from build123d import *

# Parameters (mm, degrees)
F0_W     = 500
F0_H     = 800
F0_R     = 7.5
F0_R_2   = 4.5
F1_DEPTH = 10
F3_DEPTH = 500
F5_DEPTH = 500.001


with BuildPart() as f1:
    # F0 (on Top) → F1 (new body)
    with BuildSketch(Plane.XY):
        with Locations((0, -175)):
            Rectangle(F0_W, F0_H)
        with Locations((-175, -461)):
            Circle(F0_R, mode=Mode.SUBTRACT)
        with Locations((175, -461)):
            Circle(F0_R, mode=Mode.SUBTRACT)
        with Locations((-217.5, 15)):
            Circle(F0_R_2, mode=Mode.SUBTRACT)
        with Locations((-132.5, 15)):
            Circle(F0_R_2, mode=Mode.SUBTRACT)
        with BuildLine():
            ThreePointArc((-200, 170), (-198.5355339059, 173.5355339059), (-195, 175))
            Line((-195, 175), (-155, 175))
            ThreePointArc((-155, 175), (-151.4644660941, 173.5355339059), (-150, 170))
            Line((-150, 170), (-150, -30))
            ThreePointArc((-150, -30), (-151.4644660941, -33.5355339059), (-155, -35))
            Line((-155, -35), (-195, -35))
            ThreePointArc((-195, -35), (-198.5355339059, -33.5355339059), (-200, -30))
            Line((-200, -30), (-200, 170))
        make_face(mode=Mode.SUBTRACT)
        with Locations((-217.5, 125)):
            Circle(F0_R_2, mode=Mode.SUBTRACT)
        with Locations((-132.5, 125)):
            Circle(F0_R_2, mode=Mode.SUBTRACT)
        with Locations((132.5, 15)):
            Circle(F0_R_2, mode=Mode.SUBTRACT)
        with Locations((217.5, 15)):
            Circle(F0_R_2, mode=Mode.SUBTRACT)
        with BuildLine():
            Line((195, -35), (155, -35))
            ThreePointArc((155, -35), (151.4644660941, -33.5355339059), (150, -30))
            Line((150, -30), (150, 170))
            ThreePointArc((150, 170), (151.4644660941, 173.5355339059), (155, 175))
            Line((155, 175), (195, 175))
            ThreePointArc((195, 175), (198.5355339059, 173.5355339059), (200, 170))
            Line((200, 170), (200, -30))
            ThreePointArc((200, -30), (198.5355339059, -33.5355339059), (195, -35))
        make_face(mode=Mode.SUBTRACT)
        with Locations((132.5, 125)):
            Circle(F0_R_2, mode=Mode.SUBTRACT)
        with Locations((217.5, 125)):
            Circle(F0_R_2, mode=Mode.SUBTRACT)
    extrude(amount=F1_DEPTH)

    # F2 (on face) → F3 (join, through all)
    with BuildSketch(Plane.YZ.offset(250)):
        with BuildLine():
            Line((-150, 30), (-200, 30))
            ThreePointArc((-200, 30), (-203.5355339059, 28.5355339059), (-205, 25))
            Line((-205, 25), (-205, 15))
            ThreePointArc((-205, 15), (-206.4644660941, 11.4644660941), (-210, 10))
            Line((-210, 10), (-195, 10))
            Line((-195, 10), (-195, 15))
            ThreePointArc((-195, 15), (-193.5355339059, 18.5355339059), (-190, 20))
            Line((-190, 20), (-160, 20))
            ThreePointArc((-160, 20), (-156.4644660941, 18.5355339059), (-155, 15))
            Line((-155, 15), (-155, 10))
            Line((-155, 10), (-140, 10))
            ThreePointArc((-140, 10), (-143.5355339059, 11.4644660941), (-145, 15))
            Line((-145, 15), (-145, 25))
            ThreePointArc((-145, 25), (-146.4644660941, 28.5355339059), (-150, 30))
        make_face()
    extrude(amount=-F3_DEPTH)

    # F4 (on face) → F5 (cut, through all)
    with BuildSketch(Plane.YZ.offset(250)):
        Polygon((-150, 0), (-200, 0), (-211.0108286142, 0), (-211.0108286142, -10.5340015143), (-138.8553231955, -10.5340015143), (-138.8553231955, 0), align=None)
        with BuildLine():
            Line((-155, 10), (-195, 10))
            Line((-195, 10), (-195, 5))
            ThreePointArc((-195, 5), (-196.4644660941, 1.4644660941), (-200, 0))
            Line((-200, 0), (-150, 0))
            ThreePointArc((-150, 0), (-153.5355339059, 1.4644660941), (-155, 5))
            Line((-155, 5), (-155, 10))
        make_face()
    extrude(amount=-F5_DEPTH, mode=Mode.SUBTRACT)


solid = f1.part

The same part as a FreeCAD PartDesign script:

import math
import FreeCAD as App
import Part
import Sketcher

doc = App.newDocument("Part")
body = doc.addObject("PartDesign::Body", "Body")

# Sketch on XY plane
sketch1 = body.newObject("Sketcher::SketchObject", "Sketch")
sketch1.AttachmentSupport = (doc.getObject("XY_Plane"), [""])
sketch1.MapMode = "FlatFace"
sketch1.addGeometry([
    Part.LineSegment(App.Vector(-250, 225, 0), App.Vector(-250, -575, 0)),  # 0
    Part.LineSegment(App.Vector(-250, -575, 0), App.Vector(250, -575, 0)),  # 1
    Part.LineSegment(App.Vector(250, -575, 0), App.Vector(250, 225, 0)),  # 2
    Part.LineSegment(App.Vector(250, 225, 0), App.Vector(-250, 225, 0)),  # 3
    Part.Circle(App.Vector(-175, -461, 0), App.Vector(0, 0, 1), 7.5),  # 4
    Part.Circle(App.Vector(175, -461, 0), App.Vector(0, 0, 1), 7.5),  # 5
    Part.Circle(App.Vector(-217.5, 15, 0), App.Vector(0, 0, 1), 4.5),  # 6
    Part.LineSegment(App.Vector(-200, -30, 0), App.Vector(-200, 170, 0)),  # 7
    Part.ArcOfCircle(Part.Circle(App.Vector(-195, 170, 0), App.Vector(0, 0, 1), 5), math.radians(90), math.radians(180)),  # 8
    Part.LineSegment(App.Vector(-195, 175, 0), App.Vector(-155, 175, 0)),  # 9
    Part.ArcOfCircle(Part.Circle(App.Vector(-155, 170, 0), App.Vector(0, 0, 1), 5), math.radians(0), math.radians(90)),  # 10
    Part.LineSegment(App.Vector(-150, 170, 0), App.Vector(-150, -30, 0)),  # 11
    Part.ArcOfCircle(Part.Circle(App.Vector(-155, -30, 0), App.Vector(0, 0, 1), 5), math.radians(-90), math.radians(0)),  # 12
    Part.LineSegment(App.Vector(-155, -35, 0), App.Vector(-195, -35, 0)),  # 13
    Part.ArcOfCircle(Part.Circle(App.Vector(-195, -30, 0), App.Vector(0, 0, 1), 5), math.radians(180), math.radians(270)),  # 14
    Part.Circle(App.Vector(-132.5, 15, 0), App.Vector(0, 0, 1), 4.5),  # 15
    Part.Circle(App.Vector(-217.5, 125, 0), App.Vector(0, 0, 1), 4.5),  # 16
    Part.Circle(App.Vector(-132.5, 125, 0), App.Vector(0, 0, 1), 4.5),  # 17
    Part.Circle(App.Vector(132.5, 15, 0), App.Vector(0, 0, 1), 4.5),  # 18
    Part.Circle(App.Vector(217.5, 15, 0), App.Vector(0, 0, 1), 4.5),  # 19
    Part.ArcOfCircle(Part.Circle(App.Vector(195, -30, 0), App.Vector(0, 0, 1), 5), math.radians(-90), math.radians(0)),  # 20
    Part.LineSegment(App.Vector(195, -35, 0), App.Vector(155, -35, 0)),  # 21
    Part.ArcOfCircle(Part.Circle(App.Vector(155, -30, 0), App.Vector(0, 0, 1), 5), math.radians(180), math.radians(270)),  # 22
    Part.LineSegment(App.Vector(150, -30, 0), App.Vector(150, 170, 0)),  # 23
    Part.ArcOfCircle(Part.Circle(App.Vector(155, 170, 0), App.Vector(0, 0, 1), 5), math.radians(90), math.radians(180)),  # 24
    Part.LineSegment(App.Vector(155, 175, 0), App.Vector(195, 175, 0)),  # 25
    Part.ArcOfCircle(Part.Circle(App.Vector(195, 170, 0), App.Vector(0, 0, 1), 5), math.radians(0), math.radians(90)),  # 26
    Part.LineSegment(App.Vector(200, 170, 0), App.Vector(200, -30, 0)),  # 27
    Part.Circle(App.Vector(132.5, 125, 0), App.Vector(0, 0, 1), 4.5),  # 28
    Part.Circle(App.Vector(217.5, 125, 0), App.Vector(0, 0, 1), 4.5),  # 29
], False)
sketch1.addConstraint([
    Sketcher.Constraint("Coincident", 0, 2, 1, 1),
    Sketcher.Constraint("Coincident", 1, 2, 2, 1),
    Sketcher.Constraint("Coincident", 2, 2, 3, 1),
    Sketcher.Constraint("Coincident", 3, 2, 0, 1),
    Sketcher.Constraint("Tangent", 7, 2, 8, 2),
    Sketcher.Constraint("Tangent", 8, 1, 9, 1),
    Sketcher.Constraint("Tangent", 9, 2, 10, 2),
    Sketcher.Constraint("Tangent", 10, 1, 11, 1),
    Sketcher.Constraint("Tangent", 11, 2, 12, 2),
    Sketcher.Constraint("Tangent", 12, 1, 13, 1),
    Sketcher.Constraint("Tangent", 13, 2, 14, 2),
    Sketcher.Constraint("Tangent", 14, 1, 7, 1),
    Sketcher.Constraint("Tangent", 20, 1, 21, 1),
    Sketcher.Constraint("Tangent", 21, 2, 22, 2),
    Sketcher.Constraint("Tangent", 22, 1, 23, 1),
    Sketcher.Constraint("Tangent", 23, 2, 24, 2),
    Sketcher.Constraint("Tangent", 24, 1, 25, 1),
    Sketcher.Constraint("Tangent", 25, 2, 26, 2),
    Sketcher.Constraint("Tangent", 26, 1, 27, 1),
    Sketcher.Constraint("Tangent", 27, 2, 20, 2),
    Sketcher.Constraint("Vertical", 0),
    Sketcher.Constraint("Horizontal", 1),
    Sketcher.Constraint("Vertical", 2),
    Sketcher.Constraint("Horizontal", 3),
    Sketcher.Constraint("Vertical", 7),
    Sketcher.Constraint("Horizontal", 9),
    Sketcher.Constraint("Vertical", 11),
    Sketcher.Constraint("Horizontal", 13),
    Sketcher.Constraint("Horizontal", 21),
    Sketcher.Constraint("Vertical", 23),
    Sketcher.Constraint("Horizontal", 25),
    Sketcher.Constraint("Vertical", 27),
    Sketcher.Constraint("Equal", 4, 5),
    Sketcher.Constraint("Equal", 8, 10),
    Sketcher.Constraint("Equal", 10, 12),
    Sketcher.Constraint("Equal", 12, 14),
    Sketcher.Constraint("Equal", 6, 15),
    Sketcher.Constraint("Equal", 15, 16),
    Sketcher.Constraint("Equal", 16, 17),
    Sketcher.Constraint("Equal", 17, 18),
    Sketcher.Constraint("Equal", 18, 19),
    Sketcher.Constraint("Equal", 14, 20),
    Sketcher.Constraint("Equal", 20, 22),
    Sketcher.Constraint("Equal", 22, 24),
    Sketcher.Constraint("Equal", 24, 26),
    Sketcher.Constraint("Equal", 19, 28),
    Sketcher.Constraint("Equal", 28, 29),
    Sketcher.Constraint("Symmetric", 4, 3, 5, 3, -2),
    Sketcher.Constraint("Symmetric", 15, 3, 18, 3, -2),
    Sketcher.Constraint("Symmetric", 6, 3, 19, 3, -2),
    Sketcher.Constraint("Symmetric", 14, 3, 20, 3, -2),
    Sketcher.Constraint("Symmetric", 10, 3, 24, 3, -2),
    Sketcher.Constraint("Symmetric", 17, 3, 28, 3, -2),
    Sketcher.Constraint("Symmetric", 16, 3, 29, 3, -2),
    Sketcher.Constraint("Horizontal", 6, 3, 15, 3),
    Sketcher.Constraint("Horizontal", 16, 3, 17, 3),
    Sketcher.Constraint("Vertical", 6, 3, 16, 3),
    Sketcher.Constraint("Vertical", 15, 3, 17, 3),
    Sketcher.Constraint("Diameter", 4, 15.0),
    Sketcher.Constraint("Diameter", 6, 9.0),
    Sketcher.Constraint("Radius", 8, 5.0),
    Sketcher.Constraint("DistanceX", 1, 1, 1, 2, 500.0),
    Sketcher.Constraint("DistanceX", 9, 1, 9, 2, 40.0),
    Sketcher.Constraint("DistanceY", 0, 2, 0, 1, 800.0),
    Sketcher.Constraint("DistanceY", 7, 1, 7, 2, 200.0),
    Sketcher.Constraint("DistanceX", 4, 3, -1, 1, 175.0),
    Sketcher.Constraint("DistanceY", 4, 3, -1, 1, 461.0),
    Sketcher.Constraint("DistanceY", -1, 1, 6, 3, 15.0),
    Sketcher.Constraint("DistanceX", 8, 3, -1, 1, 195.0),
    Sketcher.Constraint("DistanceY", -1, 1, 8, 3, 170.0),
    Sketcher.Constraint("DistanceY", -1, 1, 16, 3, 125.0),
    Sketcher.Constraint("DistanceX", 0, 2, -1, 1, 250.0),
    Sketcher.Constraint("DistanceY", 0, 2, -1, 1, 575.0),
    Sketcher.Constraint("DistanceX", 6, 3, 15, 3, 85.0),
    Sketcher.Constraint("DistanceX", 15, 3, 18, 3, 265.0),
])
pad1 = body.newObject("PartDesign::Pad", "Pad")
pad1.Profile = sketch1
pad1.Length = 10

# Sketch on YZ plane
sketch2 = body.newObject("Sketcher::SketchObject", "Sketch001")
sketch2.AttachmentSupport = (doc.getObject("YZ_Plane"), [""])
sketch2.MapMode = "FlatFace"
sketch2.AttachmentOffset = App.Placement(App.Vector(0, 0, 250), App.Rotation())
sketch2.addGeometry([
    Part.LineSegment(App.Vector(-150, 30, 0), App.Vector(-200, 30, 0)),  # 0
    Part.ArcOfCircle(Part.Circle(App.Vector(-200, 25, 0), App.Vector(0, 0, 1), 5), math.radians(90), math.radians(180)),  # 1
    Part.LineSegment(App.Vector(-205, 25, 0), App.Vector(-205, 15, 0)),  # 2
    Part.ArcOfCircle(Part.Circle(App.Vector(-210, 15, 0), App.Vector(0, 0, 1), 5), math.radians(-90), math.radians(0)),  # 3
    Part.LineSegment(App.Vector(-210, 10, 0), App.Vector(-195, 10, 0)),  # 4
    Part.LineSegment(App.Vector(-195, 10, 0), App.Vector(-195, 15, 0)),  # 5
    Part.ArcOfCircle(Part.Circle(App.Vector(-190, 15, 0), App.Vector(0, 0, 1), 5), math.radians(90), math.radians(180)),  # 6
    Part.LineSegment(App.Vector(-190, 20, 0), App.Vector(-160, 20, 0)),  # 7
    Part.ArcOfCircle(Part.Circle(App.Vector(-160, 15, 0), App.Vector(0, 0, 1), 5), math.radians(0), math.radians(90)),  # 8
    Part.LineSegment(App.Vector(-155, 15, 0), App.Vector(-155, 10, 0)),  # 9
    Part.LineSegment(App.Vector(-155, 10, 0), App.Vector(-140, 10, 0)),  # 10
    Part.ArcOfCircle(Part.Circle(App.Vector(-140, 15, 0), App.Vector(0, 0, 1), 5), math.radians(180), math.radians(270)),  # 11
    Part.LineSegment(App.Vector(-145, 15, 0), App.Vector(-145, 25, 0)),  # 12
    Part.ArcOfCircle(Part.Circle(App.Vector(-150, 25, 0), App.Vector(0, 0, 1), 5), math.radians(0), math.radians(90)),  # 13
], False)
sketch2.addConstraint([
    Sketcher.Constraint("Tangent", 0, 2, 1, 1),
    Sketcher.Constraint("Tangent", 1, 2, 2, 1),
    Sketcher.Constraint("Tangent", 2, 2, 3, 2),
    Sketcher.Constraint("Tangent", 3, 1, 4, 1),
    Sketcher.Constraint("Coincident", 4, 2, 5, 1),
    Sketcher.Constraint("Tangent", 5, 2, 6, 2),
    Sketcher.Constraint("Tangent", 6, 1, 7, 1),
    Sketcher.Constraint("Tangent", 7, 2, 8, 2),
    Sketcher.Constraint("Tangent", 8, 1, 9, 1),
    Sketcher.Constraint("Coincident", 9, 2, 10, 1),
    Sketcher.Constraint("Tangent", 10, 2, 11, 2),
    Sketcher.Constraint("Tangent", 11, 1, 12, 1),
    Sketcher.Constraint("Tangent", 12, 2, 13, 1),
    Sketcher.Constraint("Tangent", 13, 2, 0, 1),
    Sketcher.Constraint("Horizontal", 0),
    Sketcher.Constraint("Vertical", 2),
    Sketcher.Constraint("Horizontal", 4),
    Sketcher.Constraint("Vertical", 5),
    Sketcher.Constraint("Horizontal", 7),
    Sketcher.Constraint("Vertical", 9),
    Sketcher.Constraint("Horizontal", 10),
    Sketcher.Constraint("Vertical", 12),
    Sketcher.Constraint("Equal", 1, 3),
    Sketcher.Constraint("Equal", 3, 6),
    Sketcher.Constraint("Equal", 6, 8),
    Sketcher.Constraint("Equal", 8, 11),
    Sketcher.Constraint("Equal", 11, 13),
    Sketcher.Constraint("Horizontal", 3, 3, 6, 3),
    Sketcher.Constraint("Horizontal", 8, 3, 11, 3),
    Sketcher.Constraint("Equal", 4, 10),
    Sketcher.Constraint("Radius", 1, 5.0),
    Sketcher.Constraint("DistanceX", 0, 2, 0, 1, 50.0),
    Sketcher.Constraint("DistanceX", 4, 1, 4, 2, 15.0),
    Sketcher.Constraint("DistanceY", 2, 2, 2, 1, 10.0),
    Sketcher.Constraint("DistanceX", 1, 3, -1, 1, 200.0),
    Sketcher.Constraint("DistanceY", -1, 1, 1, 3, 25.0),
])
pad2 = body.newObject("PartDesign::Pad", "Pad001")
pad2.Profile = sketch2
pad2.Length = 500
pad2.Reversed = True

# Sketch on YZ plane
sketch3 = body.newObject("Sketcher::SketchObject", "Sketch002")
sketch3.AttachmentSupport = (doc.getObject("YZ_Plane"), [""])
sketch3.MapMode = "FlatFace"
sketch3.AttachmentOffset = App.Placement(App.Vector(0, 0, 250), App.Rotation())
sketch3.addGeometry([
    Part.LineSegment(App.Vector(-211.010829, 0, 0), App.Vector(-211.010829, -10.534002, 0)),  # 0
    Part.LineSegment(App.Vector(-211.010829, -10.534002, 0), App.Vector(-138.855323, -10.534002, 0)),  # 1
    Part.LineSegment(App.Vector(-138.855323, -10.534002, 0), App.Vector(-138.855323, 0, 0)),  # 2
    Part.LineSegment(App.Vector(-138.855323, 0, 0), App.Vector(-150, 0, 0)),  # 3
    Part.ArcOfCircle(Part.Circle(App.Vector(-150, 5, 0), App.Vector(0, 0, 1), 5), math.radians(180), math.radians(270)),  # 4
    Part.LineSegment(App.Vector(-155, 5, 0), App.Vector(-155, 10, 0)),  # 5
    Part.LineSegment(App.Vector(-155, 10, 0), App.Vector(-195, 10, 0)),  # 6
    Part.LineSegment(App.Vector(-195, 10, 0), App.Vector(-195, 5, 0)),  # 7
    Part.ArcOfCircle(Part.Circle(App.Vector(-200, 5, 0), App.Vector(0, 0, 1), 5), math.radians(-90), math.radians(0)),  # 8
    Part.LineSegment(App.Vector(-200, 0, 0), App.Vector(-211.010829, 0, 0)),  # 9
], False)
sketch3.addConstraint([
    Sketcher.Constraint("Coincident", 0, 2, 1, 1),
    Sketcher.Constraint("Coincident", 1, 2, 2, 1),
    Sketcher.Constraint("Coincident", 2, 2, 3, 1),
    Sketcher.Constraint("Tangent", 3, 2, 4, 2),
    Sketcher.Constraint("Tangent", 4, 1, 5, 1),
    Sketcher.Constraint("Coincident", 5, 2, 6, 1),
    Sketcher.Constraint("Coincident", 6, 2, 7, 1),
    Sketcher.Constraint("Tangent", 7, 2, 8, 2),
    Sketcher.Constraint("Tangent", 8, 1, 9, 1),
    Sketcher.Constraint("Coincident", 9, 2, 0, 1),
    Sketcher.Constraint("Vertical", 0),
    Sketcher.Constraint("Horizontal", 1),
    Sketcher.Constraint("Vertical", 2),
    Sketcher.Constraint("Horizontal", 3),
    Sketcher.Constraint("Vertical", 5),
    Sketcher.Constraint("Horizontal", 6),
    Sketcher.Constraint("Vertical", 7),
    Sketcher.Constraint("Horizontal", 9),
    Sketcher.Constraint("Equal", 4, 8),
    Sketcher.Constraint("PointOnObject", 2, 2, -1),
    Sketcher.Constraint("PointOnObject", 8, 1, -1),
    Sketcher.Constraint("Radius", 4, 5.0),
    Sketcher.Constraint("DistanceX", 6, 2, 6, 1, 40.0),
    Sketcher.Constraint("DistanceY", 5, 1, 5, 2, 5.0),
    Sketcher.Constraint("DistanceX", 4, 3, -1, 1, 150.0),
    Sketcher.Constraint("DistanceY", 0, 2, 0, 1, 10.534002),
    Sketcher.Constraint("DistanceX", 9, 2, 9, 1, 11.010829),
    Sketcher.Constraint("DistanceX", 1, 1, 1, 2, 72.155505),
])
pocket1 = body.newObject("PartDesign::Pocket", "Pocket")
pocket1.Profile = sketch3
pocket1.Type = "ThroughAll"

doc.recompute()
